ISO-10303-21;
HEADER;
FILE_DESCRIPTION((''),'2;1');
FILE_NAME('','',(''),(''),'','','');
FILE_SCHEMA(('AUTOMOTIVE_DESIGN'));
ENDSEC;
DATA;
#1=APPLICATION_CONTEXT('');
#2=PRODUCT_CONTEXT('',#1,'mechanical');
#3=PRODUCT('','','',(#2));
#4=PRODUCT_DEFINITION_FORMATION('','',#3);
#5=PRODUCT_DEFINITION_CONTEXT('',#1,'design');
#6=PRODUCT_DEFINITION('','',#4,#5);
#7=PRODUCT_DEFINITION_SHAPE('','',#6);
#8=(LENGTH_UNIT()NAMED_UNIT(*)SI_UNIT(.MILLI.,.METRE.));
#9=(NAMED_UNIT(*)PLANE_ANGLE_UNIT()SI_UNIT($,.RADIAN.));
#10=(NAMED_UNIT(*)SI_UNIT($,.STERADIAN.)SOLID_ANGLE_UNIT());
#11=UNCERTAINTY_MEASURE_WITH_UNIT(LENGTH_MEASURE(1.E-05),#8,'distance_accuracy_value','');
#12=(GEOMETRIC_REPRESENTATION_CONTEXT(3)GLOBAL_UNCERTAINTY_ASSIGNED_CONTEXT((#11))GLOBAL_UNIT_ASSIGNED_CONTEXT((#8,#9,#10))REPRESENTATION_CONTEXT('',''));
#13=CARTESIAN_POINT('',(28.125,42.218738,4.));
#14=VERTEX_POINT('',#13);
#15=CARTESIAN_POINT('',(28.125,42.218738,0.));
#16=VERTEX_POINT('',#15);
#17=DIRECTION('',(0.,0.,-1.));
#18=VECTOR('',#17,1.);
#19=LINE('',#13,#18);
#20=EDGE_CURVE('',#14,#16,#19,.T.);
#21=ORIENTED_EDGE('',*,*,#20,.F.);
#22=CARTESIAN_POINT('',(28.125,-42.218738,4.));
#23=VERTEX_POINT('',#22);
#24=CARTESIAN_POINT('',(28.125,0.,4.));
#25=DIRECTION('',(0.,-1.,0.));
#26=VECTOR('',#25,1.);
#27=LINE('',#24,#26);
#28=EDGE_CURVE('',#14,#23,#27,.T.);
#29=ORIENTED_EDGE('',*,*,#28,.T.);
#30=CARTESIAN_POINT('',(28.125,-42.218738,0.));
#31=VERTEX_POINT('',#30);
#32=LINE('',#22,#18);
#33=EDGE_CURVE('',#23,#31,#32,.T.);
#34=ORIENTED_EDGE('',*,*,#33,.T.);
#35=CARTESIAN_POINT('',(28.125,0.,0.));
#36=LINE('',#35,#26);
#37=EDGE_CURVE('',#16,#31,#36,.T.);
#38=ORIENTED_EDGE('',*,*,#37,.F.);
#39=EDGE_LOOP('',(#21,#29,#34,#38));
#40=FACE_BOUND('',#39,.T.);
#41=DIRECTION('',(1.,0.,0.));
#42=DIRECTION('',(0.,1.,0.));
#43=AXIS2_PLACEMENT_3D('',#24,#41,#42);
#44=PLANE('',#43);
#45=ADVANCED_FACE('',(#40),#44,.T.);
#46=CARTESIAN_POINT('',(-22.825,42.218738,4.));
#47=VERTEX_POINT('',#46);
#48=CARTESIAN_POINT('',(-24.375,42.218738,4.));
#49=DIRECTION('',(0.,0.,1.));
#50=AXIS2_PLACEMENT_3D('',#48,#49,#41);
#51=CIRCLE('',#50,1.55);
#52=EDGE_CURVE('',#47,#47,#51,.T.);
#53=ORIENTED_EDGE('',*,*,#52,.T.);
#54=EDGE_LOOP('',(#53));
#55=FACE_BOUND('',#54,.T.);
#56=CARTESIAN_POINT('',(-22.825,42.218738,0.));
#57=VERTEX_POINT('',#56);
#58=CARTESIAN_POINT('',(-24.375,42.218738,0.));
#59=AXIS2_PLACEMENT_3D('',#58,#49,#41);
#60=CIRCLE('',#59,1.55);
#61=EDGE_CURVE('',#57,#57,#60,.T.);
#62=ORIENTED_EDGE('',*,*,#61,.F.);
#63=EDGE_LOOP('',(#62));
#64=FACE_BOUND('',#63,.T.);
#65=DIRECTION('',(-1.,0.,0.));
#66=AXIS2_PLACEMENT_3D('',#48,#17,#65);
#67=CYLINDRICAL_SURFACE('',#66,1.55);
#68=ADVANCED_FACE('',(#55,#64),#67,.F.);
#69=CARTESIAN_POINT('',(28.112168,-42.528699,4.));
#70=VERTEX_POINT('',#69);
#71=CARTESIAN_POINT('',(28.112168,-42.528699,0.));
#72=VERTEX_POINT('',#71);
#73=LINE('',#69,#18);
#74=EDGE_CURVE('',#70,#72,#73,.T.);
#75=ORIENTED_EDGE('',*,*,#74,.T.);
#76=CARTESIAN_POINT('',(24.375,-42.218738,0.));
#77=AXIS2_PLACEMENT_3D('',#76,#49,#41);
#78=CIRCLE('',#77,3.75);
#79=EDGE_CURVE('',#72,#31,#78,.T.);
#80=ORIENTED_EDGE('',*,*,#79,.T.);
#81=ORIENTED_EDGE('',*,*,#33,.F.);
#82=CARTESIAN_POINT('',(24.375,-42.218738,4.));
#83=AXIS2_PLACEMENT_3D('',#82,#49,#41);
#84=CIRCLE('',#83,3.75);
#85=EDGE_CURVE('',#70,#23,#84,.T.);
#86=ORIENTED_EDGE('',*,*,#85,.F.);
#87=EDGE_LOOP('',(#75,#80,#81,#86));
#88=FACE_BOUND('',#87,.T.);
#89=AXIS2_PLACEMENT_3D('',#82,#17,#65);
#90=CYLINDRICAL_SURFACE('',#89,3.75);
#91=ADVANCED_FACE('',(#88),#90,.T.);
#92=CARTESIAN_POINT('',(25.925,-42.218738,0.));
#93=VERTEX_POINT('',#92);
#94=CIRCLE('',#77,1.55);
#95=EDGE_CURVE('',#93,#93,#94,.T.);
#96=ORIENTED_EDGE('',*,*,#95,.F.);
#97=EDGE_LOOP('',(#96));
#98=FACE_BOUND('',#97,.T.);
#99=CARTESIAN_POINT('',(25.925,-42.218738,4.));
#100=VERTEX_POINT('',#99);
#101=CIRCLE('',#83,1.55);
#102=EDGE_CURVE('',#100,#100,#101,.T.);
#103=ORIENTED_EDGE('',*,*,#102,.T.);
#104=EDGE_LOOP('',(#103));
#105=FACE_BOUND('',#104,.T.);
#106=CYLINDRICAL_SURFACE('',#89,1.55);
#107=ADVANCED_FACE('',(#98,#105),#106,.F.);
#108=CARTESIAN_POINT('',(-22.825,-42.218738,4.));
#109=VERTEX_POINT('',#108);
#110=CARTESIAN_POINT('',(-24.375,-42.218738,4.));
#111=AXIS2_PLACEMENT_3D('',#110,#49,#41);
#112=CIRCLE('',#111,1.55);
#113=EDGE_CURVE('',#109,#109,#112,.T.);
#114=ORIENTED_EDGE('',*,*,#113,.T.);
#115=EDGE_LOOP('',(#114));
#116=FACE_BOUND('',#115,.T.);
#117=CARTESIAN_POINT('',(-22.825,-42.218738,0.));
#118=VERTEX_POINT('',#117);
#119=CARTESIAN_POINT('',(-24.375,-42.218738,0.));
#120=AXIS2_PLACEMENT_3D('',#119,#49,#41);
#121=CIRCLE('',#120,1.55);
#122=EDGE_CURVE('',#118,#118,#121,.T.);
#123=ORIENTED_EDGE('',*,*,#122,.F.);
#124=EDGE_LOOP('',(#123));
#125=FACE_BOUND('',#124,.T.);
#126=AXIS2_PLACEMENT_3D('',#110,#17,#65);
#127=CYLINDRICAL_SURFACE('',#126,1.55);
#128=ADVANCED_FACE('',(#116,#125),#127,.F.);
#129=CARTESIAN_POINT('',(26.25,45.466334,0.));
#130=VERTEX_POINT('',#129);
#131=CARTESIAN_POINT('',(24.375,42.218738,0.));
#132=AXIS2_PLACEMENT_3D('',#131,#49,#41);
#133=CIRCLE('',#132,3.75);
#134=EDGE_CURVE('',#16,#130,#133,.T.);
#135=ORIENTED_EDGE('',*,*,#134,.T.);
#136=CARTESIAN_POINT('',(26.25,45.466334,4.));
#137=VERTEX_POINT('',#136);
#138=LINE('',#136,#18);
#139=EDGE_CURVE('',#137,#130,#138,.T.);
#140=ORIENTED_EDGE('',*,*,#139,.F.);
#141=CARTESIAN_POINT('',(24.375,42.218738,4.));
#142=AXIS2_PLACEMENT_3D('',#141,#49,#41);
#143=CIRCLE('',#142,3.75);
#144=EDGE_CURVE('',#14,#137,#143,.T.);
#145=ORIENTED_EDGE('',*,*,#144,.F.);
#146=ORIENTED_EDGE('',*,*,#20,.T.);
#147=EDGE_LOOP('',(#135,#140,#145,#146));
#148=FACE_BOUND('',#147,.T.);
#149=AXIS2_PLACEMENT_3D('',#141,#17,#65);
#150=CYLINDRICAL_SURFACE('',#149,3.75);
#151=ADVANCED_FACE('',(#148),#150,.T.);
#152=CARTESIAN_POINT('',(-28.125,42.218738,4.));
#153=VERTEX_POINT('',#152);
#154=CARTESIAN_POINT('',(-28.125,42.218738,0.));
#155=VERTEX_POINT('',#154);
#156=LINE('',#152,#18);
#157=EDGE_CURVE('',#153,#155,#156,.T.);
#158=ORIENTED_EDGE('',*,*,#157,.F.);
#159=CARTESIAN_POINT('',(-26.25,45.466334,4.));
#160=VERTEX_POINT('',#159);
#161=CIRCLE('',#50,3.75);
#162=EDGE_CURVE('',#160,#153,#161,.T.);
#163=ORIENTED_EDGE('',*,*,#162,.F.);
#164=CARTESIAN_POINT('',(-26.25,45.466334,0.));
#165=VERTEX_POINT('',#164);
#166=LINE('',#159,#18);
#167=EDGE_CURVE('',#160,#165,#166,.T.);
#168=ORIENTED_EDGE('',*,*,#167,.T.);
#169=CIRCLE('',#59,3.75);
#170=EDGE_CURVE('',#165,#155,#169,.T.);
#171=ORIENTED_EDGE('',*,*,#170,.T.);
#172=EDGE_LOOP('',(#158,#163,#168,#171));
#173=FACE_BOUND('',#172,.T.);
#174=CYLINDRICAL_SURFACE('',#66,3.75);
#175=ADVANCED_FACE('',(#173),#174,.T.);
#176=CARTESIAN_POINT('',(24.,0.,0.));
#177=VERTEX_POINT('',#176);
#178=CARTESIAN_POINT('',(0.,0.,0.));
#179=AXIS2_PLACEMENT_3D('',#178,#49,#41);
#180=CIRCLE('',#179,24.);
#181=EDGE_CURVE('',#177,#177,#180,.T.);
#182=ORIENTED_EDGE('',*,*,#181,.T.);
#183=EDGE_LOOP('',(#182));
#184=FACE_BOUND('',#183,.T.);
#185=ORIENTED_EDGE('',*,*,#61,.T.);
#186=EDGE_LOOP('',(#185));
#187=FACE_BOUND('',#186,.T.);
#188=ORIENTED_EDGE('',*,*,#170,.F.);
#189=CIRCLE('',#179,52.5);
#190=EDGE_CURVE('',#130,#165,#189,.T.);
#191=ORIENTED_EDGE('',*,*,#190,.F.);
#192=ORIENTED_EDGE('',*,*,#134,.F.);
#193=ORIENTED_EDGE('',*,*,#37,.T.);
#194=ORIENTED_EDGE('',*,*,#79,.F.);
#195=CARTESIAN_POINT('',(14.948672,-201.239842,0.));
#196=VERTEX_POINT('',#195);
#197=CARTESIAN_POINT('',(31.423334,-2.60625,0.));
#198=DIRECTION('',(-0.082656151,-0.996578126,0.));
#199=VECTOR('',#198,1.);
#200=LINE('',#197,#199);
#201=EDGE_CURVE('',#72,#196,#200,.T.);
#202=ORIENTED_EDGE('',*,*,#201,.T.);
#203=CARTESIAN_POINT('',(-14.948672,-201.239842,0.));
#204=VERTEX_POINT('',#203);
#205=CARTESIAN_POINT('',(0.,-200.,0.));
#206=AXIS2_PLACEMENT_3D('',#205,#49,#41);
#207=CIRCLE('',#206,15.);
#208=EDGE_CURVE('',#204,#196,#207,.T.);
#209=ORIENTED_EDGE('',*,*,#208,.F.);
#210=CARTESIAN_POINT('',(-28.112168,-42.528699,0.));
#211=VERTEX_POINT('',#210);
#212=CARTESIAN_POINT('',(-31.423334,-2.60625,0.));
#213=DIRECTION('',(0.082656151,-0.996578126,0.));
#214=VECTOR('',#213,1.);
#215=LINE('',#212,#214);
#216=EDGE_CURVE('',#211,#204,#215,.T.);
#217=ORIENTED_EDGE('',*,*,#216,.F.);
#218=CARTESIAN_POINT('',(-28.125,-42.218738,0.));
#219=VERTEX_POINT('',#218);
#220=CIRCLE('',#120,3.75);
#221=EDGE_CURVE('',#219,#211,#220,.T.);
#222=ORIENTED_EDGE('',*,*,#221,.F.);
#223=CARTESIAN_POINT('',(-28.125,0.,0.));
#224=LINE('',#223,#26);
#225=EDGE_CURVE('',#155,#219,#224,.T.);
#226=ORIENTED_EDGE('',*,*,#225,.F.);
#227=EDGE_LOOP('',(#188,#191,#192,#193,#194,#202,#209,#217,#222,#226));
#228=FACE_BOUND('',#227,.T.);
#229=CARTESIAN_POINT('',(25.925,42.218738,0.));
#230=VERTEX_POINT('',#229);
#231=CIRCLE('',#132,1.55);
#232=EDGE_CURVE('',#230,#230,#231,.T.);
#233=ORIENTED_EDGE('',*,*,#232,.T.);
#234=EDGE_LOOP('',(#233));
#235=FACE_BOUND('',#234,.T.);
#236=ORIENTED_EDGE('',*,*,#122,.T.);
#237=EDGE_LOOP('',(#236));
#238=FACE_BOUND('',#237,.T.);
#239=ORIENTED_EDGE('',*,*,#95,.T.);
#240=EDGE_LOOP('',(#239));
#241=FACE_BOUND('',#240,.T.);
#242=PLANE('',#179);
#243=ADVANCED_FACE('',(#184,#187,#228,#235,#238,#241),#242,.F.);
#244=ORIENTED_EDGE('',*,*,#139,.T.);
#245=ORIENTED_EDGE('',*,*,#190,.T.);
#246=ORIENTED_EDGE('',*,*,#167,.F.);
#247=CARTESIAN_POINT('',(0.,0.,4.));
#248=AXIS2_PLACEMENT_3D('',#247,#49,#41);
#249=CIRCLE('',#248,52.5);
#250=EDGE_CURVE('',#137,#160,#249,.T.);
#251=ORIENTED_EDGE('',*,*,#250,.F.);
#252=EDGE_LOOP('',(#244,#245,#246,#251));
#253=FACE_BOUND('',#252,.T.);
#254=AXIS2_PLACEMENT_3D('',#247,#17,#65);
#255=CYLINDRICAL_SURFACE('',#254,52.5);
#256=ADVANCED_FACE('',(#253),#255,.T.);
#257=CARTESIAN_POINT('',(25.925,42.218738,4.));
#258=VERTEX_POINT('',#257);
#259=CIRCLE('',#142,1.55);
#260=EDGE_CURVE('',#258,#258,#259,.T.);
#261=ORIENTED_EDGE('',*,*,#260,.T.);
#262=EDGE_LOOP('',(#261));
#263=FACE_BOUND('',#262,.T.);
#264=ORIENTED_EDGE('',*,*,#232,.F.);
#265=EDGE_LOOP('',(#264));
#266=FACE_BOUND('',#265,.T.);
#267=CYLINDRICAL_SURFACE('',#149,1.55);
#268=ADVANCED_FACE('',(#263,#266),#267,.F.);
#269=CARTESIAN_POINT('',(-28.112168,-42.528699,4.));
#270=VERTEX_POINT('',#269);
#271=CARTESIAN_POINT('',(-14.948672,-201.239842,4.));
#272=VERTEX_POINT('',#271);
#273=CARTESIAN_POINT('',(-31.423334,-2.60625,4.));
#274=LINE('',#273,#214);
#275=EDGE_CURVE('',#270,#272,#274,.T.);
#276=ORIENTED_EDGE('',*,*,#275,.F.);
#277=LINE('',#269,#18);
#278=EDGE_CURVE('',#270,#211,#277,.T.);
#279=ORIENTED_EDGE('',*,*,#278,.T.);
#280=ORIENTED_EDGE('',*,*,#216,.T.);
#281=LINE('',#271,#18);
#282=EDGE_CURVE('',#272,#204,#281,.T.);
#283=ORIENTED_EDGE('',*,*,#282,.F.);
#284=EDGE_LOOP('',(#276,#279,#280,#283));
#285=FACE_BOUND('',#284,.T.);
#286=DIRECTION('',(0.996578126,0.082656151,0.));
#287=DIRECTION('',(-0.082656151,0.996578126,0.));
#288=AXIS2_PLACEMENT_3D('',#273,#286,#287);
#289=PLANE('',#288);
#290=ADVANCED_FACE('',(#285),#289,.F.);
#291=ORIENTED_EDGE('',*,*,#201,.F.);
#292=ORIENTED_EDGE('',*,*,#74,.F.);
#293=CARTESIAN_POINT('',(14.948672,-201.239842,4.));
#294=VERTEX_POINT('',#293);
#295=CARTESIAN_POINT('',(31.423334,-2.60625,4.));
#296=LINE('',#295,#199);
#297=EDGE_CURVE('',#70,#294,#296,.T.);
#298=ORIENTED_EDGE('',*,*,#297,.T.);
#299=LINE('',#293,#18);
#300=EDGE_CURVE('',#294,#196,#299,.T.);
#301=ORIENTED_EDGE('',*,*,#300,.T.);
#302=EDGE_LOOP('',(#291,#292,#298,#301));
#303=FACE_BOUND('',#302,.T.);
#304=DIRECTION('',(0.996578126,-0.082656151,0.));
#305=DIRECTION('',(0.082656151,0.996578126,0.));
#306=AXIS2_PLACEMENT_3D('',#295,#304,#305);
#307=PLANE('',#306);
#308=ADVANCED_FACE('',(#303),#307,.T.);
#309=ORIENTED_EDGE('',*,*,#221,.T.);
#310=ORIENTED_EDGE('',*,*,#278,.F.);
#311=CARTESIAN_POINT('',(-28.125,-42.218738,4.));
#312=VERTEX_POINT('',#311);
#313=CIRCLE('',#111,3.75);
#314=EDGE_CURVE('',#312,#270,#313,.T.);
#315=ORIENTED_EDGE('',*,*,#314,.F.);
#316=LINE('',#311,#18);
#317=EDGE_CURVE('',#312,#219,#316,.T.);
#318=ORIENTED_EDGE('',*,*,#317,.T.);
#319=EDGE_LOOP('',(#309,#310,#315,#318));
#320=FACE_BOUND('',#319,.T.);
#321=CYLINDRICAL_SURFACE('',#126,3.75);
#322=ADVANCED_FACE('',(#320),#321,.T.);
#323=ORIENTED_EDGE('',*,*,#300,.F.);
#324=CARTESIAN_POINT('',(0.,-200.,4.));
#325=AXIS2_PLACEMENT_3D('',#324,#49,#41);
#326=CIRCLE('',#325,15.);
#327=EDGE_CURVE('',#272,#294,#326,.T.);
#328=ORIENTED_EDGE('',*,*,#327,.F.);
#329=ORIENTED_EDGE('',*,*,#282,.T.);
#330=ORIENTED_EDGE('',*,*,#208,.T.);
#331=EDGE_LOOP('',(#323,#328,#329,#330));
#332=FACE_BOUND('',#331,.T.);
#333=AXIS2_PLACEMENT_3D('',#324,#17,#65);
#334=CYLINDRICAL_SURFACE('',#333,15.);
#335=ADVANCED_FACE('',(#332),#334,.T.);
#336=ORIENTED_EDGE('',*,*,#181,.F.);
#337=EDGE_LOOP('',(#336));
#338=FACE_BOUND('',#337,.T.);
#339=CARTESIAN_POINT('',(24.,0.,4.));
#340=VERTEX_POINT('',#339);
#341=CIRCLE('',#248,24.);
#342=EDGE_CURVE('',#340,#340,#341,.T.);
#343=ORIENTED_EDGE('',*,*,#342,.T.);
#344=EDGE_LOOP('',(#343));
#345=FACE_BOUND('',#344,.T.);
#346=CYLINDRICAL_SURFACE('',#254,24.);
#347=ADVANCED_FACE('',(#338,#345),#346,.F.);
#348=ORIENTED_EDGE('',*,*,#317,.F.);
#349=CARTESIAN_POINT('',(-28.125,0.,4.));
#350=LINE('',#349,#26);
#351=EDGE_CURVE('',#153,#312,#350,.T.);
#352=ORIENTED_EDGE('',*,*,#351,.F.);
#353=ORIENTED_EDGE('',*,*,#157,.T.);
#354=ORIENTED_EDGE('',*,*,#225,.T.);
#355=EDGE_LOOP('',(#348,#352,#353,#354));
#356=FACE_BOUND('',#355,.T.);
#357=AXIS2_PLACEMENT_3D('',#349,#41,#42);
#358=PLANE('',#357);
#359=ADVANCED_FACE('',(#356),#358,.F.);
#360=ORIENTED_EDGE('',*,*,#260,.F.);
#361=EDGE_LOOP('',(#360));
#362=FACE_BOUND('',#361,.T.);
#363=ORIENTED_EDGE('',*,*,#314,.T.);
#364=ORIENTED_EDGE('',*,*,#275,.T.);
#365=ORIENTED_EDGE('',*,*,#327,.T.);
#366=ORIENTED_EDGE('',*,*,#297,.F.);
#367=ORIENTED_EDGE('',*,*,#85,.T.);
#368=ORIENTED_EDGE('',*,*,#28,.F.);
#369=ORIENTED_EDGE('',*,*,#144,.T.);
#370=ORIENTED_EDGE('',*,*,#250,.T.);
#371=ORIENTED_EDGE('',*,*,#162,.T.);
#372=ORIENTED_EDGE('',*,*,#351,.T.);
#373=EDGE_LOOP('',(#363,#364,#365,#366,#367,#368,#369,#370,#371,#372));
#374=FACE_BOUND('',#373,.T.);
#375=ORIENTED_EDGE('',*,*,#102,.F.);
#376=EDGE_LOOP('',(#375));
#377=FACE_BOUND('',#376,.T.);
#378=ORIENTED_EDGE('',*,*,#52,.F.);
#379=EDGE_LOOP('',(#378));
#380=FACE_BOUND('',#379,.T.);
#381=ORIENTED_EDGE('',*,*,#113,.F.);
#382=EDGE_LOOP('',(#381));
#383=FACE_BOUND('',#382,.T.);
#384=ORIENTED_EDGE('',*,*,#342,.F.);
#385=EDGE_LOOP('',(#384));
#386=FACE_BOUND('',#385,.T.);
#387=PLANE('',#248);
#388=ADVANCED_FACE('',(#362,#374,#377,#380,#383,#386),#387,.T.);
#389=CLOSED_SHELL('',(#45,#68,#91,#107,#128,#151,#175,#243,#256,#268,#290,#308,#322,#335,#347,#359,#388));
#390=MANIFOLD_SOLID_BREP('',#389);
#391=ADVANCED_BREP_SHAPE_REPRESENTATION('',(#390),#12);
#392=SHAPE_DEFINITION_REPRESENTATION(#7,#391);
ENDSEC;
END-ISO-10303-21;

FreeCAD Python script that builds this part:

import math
import FreeCAD as App
import Part
import Sketcher
from FreeCAD import Vector
Q = App.Units.Quantity

doc = App.newDocument("Part")
body = doc.addObject("PartDesign::Body", "Body")

# Sketch on XY plane
sketch1 = body.newObject("Sketcher::SketchObject", "Sketch")
sketch1.AttachmentSupport = (doc.getObject("XY_Plane"), [""])
sketch1.MapMode = "FlatFace"
sketch1.addGeometry(Part.ArcOfCircle(Part.Circle(Vector(-24.375, 42.218738, 0), Vector(0, 0, 1), 3.75), math.radians(120), math.radians(180)), False)
sketch1.addGeometry(Part.LineSegment(Vector(-28.125, 42.218738, 0), Vector(-28.125, -42.218738, 0)), False)
sketch1.addGeometry(Part.ArcOfCircle(Part.Circle(Vector(-24.375001, -42.218738, 0), Vector(0, 0, 1), 3.749999), math.radians(180), math.radians(184.741258)), False)
sketch1.addGeometry(Part.ArcOfCircle(Part.Circle(Vector(-24.375, -42.218738, 0), Vector(0, 0, 1), 3.75), math.radians(-175.258742), math.radians(-120)), False)
sketch1.addGeometry(Part.ArcOfCircle(Part.Circle(Vector(0, 0, 0), Vector(0, 0, 1), 52.5), math.radians(-120), math.radians(-60)), False)
sketch1.addGeometry(Part.ArcOfCircle(Part.Circle(Vector(24.375, -42.218738, 0), Vector(0, 0, 1), 3.75), math.radians(-60), math.radians(-4.741258)), False)
sketch1.addGeometry(Part.ArcOfCircle(Part.Circle(Vector(24.375001, -42.218738, 0), Vector(0, 0, 1), 3.749999), math.radians(-4.741258), math.radians(0)), False)
sketch1.addGeometry(Part.LineSegment(Vector(28.125, -42.218738, 0), Vector(28.125, 42.218738, 0)), False)
sketch1.addGeometry(Part.ArcOfCircle(Part.Circle(Vector(24.375, 42.218738, 0), Vector(0, 0, 1), 3.75), math.radians(0), math.radians(60)), False)
sketch1.addGeometry(Part.ArcOfCircle(Part.Circle(Vector(0, 0, 0), Vector(0, 0, 1), 52.5), math.radians(60), math.radians(120)), False)
sketch1.addGeometry(Part.Circle(Vector(-24.375, -42.218738, 0), Vector(0, 0, 1), 1.55), False)
sketch1.addGeometry(Part.Circle(Vector(24.375, -42.218738, 0), Vector(0, 0, 1), 1.55), False)
sketch1.addGeometry(Part.Circle(Vector(-24.375, 42.218738, 0), Vector(0, 0, 1), 1.55), False)
sketch1.addGeometry(Part.Circle(Vector(0, 0, 0), Vector(0, 0, 1), 24), False)
sketch1.addGeometry(Part.Circle(Vector(24.375, 42.218738, 0), Vector(0, 0, 1), 1.55), False)
sketch1.addConstraint(Sketcher.Constraint("Tangent", 0, 2, 1, 1))
sketch1.addConstraint(Sketcher.Constraint("Tangent", 1, 2, 2, 1))
sketch1.addConstraint(Sketcher.Constraint("Tangent", 2, 2, 3, 1))
sketch1.addConstraint(Sketcher.Constraint("Tangent", 3, 2, 4, 1))
sketch1.addConstraint(Sketcher.Constraint("Tangent", 4, 2, 5, 1))
sketch1.addConstraint(Sketcher.Constraint("Tangent", 5, 2, 6, 1))
sketch1.addConstraint(Sketcher.Constraint("Tangent", 6, 2, 7, 1))
sketch1.addConstraint(Sketcher.Constraint("Tangent", 7, 2, 8, 1))
sketch1.addConstraint(Sketcher.Constraint("Tangent", 8, 2, 9, 1))
sketch1.addConstraint(Sketcher.Constraint("Tangent", 9, 2, 0, 1))
sketch1.addConstraint(Sketcher.Constraint("Vertical", 1))
sketch1.addConstraint(Sketcher.Constraint("Vertical", 7))
sketch1.addConstraint(Sketcher.Constraint("Coincident", 4, 3, -1, 1))
sketch1.addConstraint(Sketcher.Constraint("Coincident", 9, 3, -1, 1))
sketch1.addConstraint(Sketcher.Constraint("Coincident", 13, 3, -1, 1))
sketch1.addConstraint(Sketcher.Constraint("Coincident", 10, 3, 2, 3))
sketch1.addConstraint(Sketcher.Constraint("Coincident", 11, 3, 5, 3))
sketch1.addConstraint(Sketcher.Constraint("Coincident", 12, 3, 0, 3))
sketch1.addConstraint(Sketcher.Constraint("Coincident", 14, 3, 8, 3))
sketch1.addConstraint(Sketcher.Constraint("Equal", 0, 2))
sketch1.addConstraint(Sketcher.Constraint("Equal", 2, 3))
sketch1.addConstraint(Sketcher.Constraint("Equal", 3, 5))
sketch1.addConstraint(Sketcher.Constraint("Equal", 5, 6))
sketch1.addConstraint(Sketcher.Constraint("Equal", 6, 8))
sketch1.addConstraint(Sketcher.Constraint("Equal", 4, 9))
sketch1.addConstraint(Sketcher.Constraint("Equal", 10, 11))
sketch1.addConstraint(Sketcher.Constraint("Equal", 11, 12))
sketch1.addConstraint(Sketcher.Constraint("Equal", 12, 14))
sketch1.addConstraint(Sketcher.Constraint("Symmetric", 2, 2, 5, 2, -2))
sketch1.addConstraint(Sketcher.Constraint("Diameter", 13, Q("48 mm")))
sketch1.addConstraint(Sketcher.Constraint("Diameter", 10, Q("3.1 mm")))
sketch1.addConstraint(Sketcher.Constraint("Radius", 4, Q("52.5 mm")))
sketch1.addConstraint(Sketcher.Constraint("Radius", 0, Q("3.75 mm")))
sketch1.addConstraint(Sketcher.Constraint("DistanceX", 3, 2, -1, 1, Q("26.25 mm")))
sketch1.addConstraint(Sketcher.Constraint("DistanceY", 2, 2, -1, 1, Q("42.528699 mm")))
pad1 = body.newObject("PartDesign::Pad", "Pad")
pad1.Profile = sketch1
pad1.Length = 4

# Sketch on XY plane
sketch2 = body.newObject("Sketcher::SketchObject", "Sketch001")
sketch2.AttachmentSupport = (doc.getObject("XY_Plane"), [""])
sketch2.MapMode = "FlatFace"
sketch2.addGeometry(Part.ArcOfCircle(Part.Circle(Vector(-24.375, -42.218738, 0), Vector(0, 0, 1), 3.75), math.radians(-175.258742), math.radians(-120)), False)
sketch2.addGeometry(Part.LineSegment(Vector(-28.112168, -42.528699, 0), Vector(-16.497234, -182.568957, 0)), False)
sketch2.addGeometry(Part.LineSegment(Vector(-16.497234, -182.568957, 0), Vector(-14.948672, -201.239842, 0)), False)
sketch2.addGeometry(Part.ArcOfCircle(Part.Circle(Vector(0, -200, 0), Vector(0, 0, 1), 15), math.radians(-175.258742), math.radians(-4.741258)), False)
sketch2.addGeometry(Part.LineSegment(Vector(14.948672, -201.239842, 0), Vector(16.497234, -182.568957, 0)), False)
sketch2.addGeometry(Part.LineSegment(Vector(16.497234, -182.568957, 0), Vector(28.112168, -42.528699, 0)), False)
sketch2.addGeometry(Part.ArcOfCircle(Part.Circle(Vector(24.375, -42.218738, 0), Vector(0, 0, 1), 3.75), math.radians(-60), math.radians(-4.741258)), False)
sketch2.addGeometry(Part.ArcOfCircle(Part.Circle(Vector(0, 0, 0), Vector(0, 0, 1), 52.5), math.radians(-120), math.radians(-60)), False)
sketch2.addConstraint(Sketcher.Constraint("Tangent", 0, 1, 1, 1))
sketch2.addConstraint(Sketcher.Constraint("Coincident", 1, 2, 2, 1))
sketch2.addConstraint(Sketcher.Constraint("Tangent", 2, 2, 3, 1))
sketch2.addConstraint(Sketcher.Constraint("Tangent", 3, 2, 4, 1))
sketch2.addConstraint(Sketcher.Constraint("Coincident", 4, 2, 5, 1))
sketch2.addConstraint(Sketcher.Constraint("Tangent", 5, 2, 6, 2))
sketch2.addConstraint(Sketcher.Constraint("Tangent", 6, 1, 7, 2))
sketch2.addConstraint(Sketcher.Constraint("Tangent", 7, 1, 0, 2))
sketch2.addConstraint(Sketcher.Constraint("Coincident", 7, 3, -1, 1))
sketch2.addConstraint(Sketcher.Constraint("Equal", 0, 6))
sketch2.addConstraint(Sketcher.Constraint("Symmetric", 2, 2, 3, 2, -2))
sketch2.addConstraint(Sketcher.Constraint("Parallel", 1, 2))
sketch2.addConstraint(Sketcher.Constraint("Parallel", 4, 5))
sketch2.addConstraint(Sketcher.Constraint("Horizontal", 1, 2, 4, 2))
sketch2.addConstraint(Sketcher.Constraint("Radius", 3, Q("15 mm")))
sketch2.addConstraint(Sketcher.Constraint("Radius", 7, Q("52.5 mm")))
sketch2.addConstraint(Sketcher.Constraint("Radius", 0, Q("3.75 mm")))
sketch2.addConstraint(Sketcher.Constraint("DistanceY", 3, 3, -1, 1, Q("200 mm")))
sketch2.addConstraint(Sketcher.Constraint("DistanceX", 7, 1, 6, 1, Q("52.5 mm")))
sketch2.addConstraint(Sketcher.Constraint("DistanceY", 1, 2, 0, 1, Q("140.040258 mm")))
pad2 = body.newObject("PartDesign::Pad", "Pad001")
pad2.Profile = sketch2
pad2.Length = 4

doc.recompute()
